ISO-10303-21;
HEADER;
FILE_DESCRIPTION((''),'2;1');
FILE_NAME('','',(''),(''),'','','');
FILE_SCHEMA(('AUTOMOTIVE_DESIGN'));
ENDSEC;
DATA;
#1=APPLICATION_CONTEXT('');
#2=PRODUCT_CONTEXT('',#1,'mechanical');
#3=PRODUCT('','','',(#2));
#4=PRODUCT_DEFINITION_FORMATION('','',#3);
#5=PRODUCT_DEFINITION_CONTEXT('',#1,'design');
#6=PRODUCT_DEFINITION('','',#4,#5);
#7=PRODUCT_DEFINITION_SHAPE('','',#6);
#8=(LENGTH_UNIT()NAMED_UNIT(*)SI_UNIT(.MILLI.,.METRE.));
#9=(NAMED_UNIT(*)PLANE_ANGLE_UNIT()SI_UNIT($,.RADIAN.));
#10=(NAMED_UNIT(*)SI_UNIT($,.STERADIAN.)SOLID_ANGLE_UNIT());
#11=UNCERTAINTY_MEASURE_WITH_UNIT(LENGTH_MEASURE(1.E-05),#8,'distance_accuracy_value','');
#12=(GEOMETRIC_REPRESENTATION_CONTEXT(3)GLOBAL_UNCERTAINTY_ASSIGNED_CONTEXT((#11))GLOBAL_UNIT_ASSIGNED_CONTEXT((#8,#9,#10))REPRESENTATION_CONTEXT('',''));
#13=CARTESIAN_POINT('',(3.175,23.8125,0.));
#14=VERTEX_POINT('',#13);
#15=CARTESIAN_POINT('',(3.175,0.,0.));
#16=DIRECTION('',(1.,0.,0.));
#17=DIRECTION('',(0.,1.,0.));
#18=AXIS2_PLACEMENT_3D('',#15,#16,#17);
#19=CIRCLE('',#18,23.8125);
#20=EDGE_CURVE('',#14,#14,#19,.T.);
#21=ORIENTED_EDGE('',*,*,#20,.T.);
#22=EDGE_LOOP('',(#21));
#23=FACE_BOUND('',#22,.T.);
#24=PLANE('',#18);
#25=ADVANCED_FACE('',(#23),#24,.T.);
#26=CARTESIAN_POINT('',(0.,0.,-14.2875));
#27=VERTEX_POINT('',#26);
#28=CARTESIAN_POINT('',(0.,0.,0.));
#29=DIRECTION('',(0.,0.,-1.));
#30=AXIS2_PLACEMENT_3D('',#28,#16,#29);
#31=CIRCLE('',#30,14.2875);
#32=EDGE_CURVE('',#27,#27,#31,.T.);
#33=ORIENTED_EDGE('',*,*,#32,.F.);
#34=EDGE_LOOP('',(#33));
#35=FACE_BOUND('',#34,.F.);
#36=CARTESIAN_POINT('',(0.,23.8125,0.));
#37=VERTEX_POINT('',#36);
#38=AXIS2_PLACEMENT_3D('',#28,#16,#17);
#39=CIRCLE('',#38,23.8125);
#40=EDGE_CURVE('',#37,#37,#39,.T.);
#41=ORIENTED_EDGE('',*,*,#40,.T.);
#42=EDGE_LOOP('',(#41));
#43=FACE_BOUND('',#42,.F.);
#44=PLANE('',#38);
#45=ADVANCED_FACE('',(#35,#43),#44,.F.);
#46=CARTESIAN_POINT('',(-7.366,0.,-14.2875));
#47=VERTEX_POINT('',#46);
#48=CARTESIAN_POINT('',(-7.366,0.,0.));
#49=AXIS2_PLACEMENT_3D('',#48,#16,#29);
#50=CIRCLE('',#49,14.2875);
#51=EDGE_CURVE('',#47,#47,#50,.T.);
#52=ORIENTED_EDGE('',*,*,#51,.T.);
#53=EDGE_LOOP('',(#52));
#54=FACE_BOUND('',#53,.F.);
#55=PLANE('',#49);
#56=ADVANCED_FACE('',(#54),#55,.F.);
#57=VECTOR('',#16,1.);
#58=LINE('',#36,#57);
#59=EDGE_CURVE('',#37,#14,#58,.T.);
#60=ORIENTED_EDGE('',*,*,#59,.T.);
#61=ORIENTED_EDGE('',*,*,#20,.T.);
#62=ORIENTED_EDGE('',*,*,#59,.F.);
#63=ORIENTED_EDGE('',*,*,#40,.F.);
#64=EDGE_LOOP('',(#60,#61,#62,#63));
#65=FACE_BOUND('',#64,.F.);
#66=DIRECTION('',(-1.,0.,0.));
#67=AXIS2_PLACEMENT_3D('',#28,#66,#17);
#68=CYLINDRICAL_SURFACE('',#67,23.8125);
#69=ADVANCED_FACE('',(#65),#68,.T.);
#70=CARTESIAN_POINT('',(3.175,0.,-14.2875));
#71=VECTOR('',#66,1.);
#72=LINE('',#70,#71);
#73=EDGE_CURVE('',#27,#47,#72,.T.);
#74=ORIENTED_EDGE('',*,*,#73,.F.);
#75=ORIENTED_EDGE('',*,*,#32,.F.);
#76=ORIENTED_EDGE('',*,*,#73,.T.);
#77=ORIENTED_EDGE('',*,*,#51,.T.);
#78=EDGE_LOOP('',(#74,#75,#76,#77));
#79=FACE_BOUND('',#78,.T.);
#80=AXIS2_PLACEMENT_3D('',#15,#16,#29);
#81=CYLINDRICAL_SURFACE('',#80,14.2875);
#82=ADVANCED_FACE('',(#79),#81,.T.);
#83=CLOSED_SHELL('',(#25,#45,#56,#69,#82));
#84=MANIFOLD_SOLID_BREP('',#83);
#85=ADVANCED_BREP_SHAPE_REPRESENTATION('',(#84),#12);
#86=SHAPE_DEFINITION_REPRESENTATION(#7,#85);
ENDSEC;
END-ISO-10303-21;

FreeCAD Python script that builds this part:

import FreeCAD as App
import Part
import Sketcher

V = App.Vector
Q = App.Units.Quantity

doc = App.newDocument("Part")
body = doc.addObject("PartDesign::Body", "Body")

sketch1 = body.newObject("Sketcher::SketchObject", "Sketch")
sketch1.AttachmentSupport = (doc.getObject("YZ_Plane"), [""])
sketch1.MapMode = "FlatFace"
sketch1.addGeometry(Part.Circle(V(0, 0, 0), V(0, 0, 1), 24), False)
sketch1.addGeometry(Part.Circle(V(0, 0, 0), V(0, 0, 1), 6), False)
sketch1.addConstraint(Sketcher.Constraint("Coincident", 0, 3, -1, 1))
sketch1.addConstraint(Sketcher.Constraint("Coincident", 1, 3, -1, 1))
sketch1.addConstraint(Sketcher.Constraint("Diameter", 1, Q("0.5 in")))
sketch1.addConstraint(Sketcher.Constraint("Diameter", 0, Q("1.875 in")))
pad1 = body.newObject("PartDesign::Pad", "Pad")
pad1.Profile = sketch1
pad1.Length = Q("0.125 in")

sketch2 = body.newObject("Sketcher::SketchObject", "Sketch001")
sketch2.AttachmentSupport = (doc.getObject("YZ_Plane"), [""])
sketch2.MapMode = "FlatFace"
sketch2.AttachmentOffset = App.Placement(V(0, 0, 0.125 * 25.4), App.Rotation())
sketch2.addGeometry(Part.Circle(V(0, 0, 0), V(0, 0, 1), 14), False)
sketch2.addConstraint(Sketcher.Constraint("Coincident", 0, 3, -1, 1))
sketch2.addConstraint(Sketcher.Constraint("Diameter", 0, Q("1.125 in")))
pad2 = body.newObject("PartDesign::Pad", "Pad001")
pad2.Profile = sketch2
pad2.Length = Q("0.415 in")
pad2.Reversed = True

doc.recompute()
